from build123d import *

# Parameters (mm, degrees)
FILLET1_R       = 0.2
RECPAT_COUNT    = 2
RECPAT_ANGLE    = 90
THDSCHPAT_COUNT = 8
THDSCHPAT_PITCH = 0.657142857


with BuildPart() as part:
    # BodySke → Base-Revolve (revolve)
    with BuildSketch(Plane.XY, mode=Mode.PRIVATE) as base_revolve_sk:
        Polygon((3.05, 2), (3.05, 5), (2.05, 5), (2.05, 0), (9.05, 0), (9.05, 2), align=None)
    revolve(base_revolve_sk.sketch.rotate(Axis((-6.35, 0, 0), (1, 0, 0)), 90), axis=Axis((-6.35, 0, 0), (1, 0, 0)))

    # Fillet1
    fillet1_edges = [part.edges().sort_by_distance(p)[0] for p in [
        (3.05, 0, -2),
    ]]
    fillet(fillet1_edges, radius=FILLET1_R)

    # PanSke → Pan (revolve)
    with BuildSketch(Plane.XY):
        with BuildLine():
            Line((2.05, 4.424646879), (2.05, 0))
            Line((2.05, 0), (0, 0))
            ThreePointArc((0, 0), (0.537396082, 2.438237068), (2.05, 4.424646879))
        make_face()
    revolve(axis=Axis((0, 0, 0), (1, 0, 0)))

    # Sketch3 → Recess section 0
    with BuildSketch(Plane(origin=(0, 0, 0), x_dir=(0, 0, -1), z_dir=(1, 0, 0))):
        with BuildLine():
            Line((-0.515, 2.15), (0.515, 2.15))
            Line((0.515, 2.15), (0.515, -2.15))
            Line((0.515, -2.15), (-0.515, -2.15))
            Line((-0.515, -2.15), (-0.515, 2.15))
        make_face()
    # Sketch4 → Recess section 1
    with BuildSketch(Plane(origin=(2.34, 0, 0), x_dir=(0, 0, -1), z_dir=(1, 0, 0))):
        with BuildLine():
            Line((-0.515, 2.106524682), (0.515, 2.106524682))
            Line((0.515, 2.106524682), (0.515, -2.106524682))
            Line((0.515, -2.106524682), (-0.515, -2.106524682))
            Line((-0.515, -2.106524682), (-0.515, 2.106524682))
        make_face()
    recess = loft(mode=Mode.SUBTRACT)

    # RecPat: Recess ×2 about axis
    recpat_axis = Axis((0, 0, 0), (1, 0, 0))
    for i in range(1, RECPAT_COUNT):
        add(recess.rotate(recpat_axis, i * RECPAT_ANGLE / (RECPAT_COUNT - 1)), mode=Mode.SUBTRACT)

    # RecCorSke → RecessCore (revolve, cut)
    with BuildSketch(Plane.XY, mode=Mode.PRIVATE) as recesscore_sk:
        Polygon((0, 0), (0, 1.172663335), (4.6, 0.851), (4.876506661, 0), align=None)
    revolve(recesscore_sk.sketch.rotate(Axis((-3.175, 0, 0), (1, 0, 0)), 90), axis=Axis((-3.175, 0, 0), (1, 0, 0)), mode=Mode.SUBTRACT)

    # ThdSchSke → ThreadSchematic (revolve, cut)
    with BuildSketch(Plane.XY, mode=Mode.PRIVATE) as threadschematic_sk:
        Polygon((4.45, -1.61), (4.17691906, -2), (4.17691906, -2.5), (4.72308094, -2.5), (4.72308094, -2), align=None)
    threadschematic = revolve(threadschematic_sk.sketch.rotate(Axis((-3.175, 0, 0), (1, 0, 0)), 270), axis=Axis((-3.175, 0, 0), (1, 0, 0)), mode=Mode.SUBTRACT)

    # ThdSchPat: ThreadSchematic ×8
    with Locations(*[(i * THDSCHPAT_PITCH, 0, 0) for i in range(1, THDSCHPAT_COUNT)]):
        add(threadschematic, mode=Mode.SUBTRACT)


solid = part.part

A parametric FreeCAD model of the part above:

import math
import FreeCAD as App
import Part
import Sketcher

V = App.Vector
Q = App.Units.Quantity


def edges_at(feature, points):
    """Names of the edges that pass closest to the given points."""
    edges = feature.Shape.Edges
    near = lambda p: min(range(len(edges)), key=lambda i: edges[i].distToShape(Part.Vertex(*p))[0])
    return sorted({f"Edge{near(p) + 1}" for p in points})


def add_polygon(sketch, points):
    """Adds a closed chain of lines whose ends are joined by coincident constraints."""
    first, n = sketch.GeometryCount, len(points)
    for a, b in zip(points, points[1:] + points[:1]):
        sketch.addGeometry(Part.LineSegment(App.Vector(*a, 0), App.Vector(*b, 0)), False)
    for i in range(n):
        sketch.addConstraint(Sketcher.Constraint("Coincident", first + i, 2, first + (i + 1) % n, 1))

doc = App.newDocument("Part")
body = doc.addObject("PartDesign::Body", "Body")

sketch1 = body.newObject("Sketcher::SketchObject", "Sketch")
sketch1.AttachmentSupport = (doc.getObject("XY_Plane"), [""])
sketch1.MapMode = "FlatFace"
add_polygon(sketch1, [(3, 2), (3, 5), (2, 5), (2, 0), (9.1, 0), (9.1, 2)])
sketch1.addConstraint(Sketcher.Constraint("Vertical", 0))
sketch1.addConstraint(Sketcher.Constraint("Horizontal", 1))
sketch1.addConstraint(Sketcher.Constraint("Vertical", 2))
sketch1.addConstraint(Sketcher.Constraint("Horizontal", 3))
sketch1.addConstraint(Sketcher.Constraint("Vertical", 4))
sketch1.addConstraint(Sketcher.Constraint("Horizontal", 5))
sketch1.addConstraint(Sketcher.Constraint("PointOnObject", 2, 2, -1))
sketch1.addConstraint(Sketcher.Constraint("DistanceX", 1, 2, 1, 1, 1.0))
sketch1.addConstraint(Sketcher.Constraint("DistanceX", 3, 1, 3, 2, 7.0))
sketch1.addConstraint(Sketcher.Constraint("DistanceY", 0, 1, 0, 2, 3.0))
sketch1.addConstraint(Sketcher.Constraint("DistanceY", 2, 2, 2, 1, 5.0))
sketch1.addConstraint(Sketcher.Constraint("DistanceX", -1, 1, 0, 2, 3.05))
revolution = body.newObject("PartDesign::Revolution", "Revolution")
revolution.Profile = sketch1
revolution.ReferenceAxis = (sketch1, ["H_Axis"])
revolution.Angle = 360
doc.recompute()

fillet = body.newObject("PartDesign::Fillet", "Fillet")
fillet.Base = (revolution, edges_at(revolution, [(3.05, 0, -2)]))
fillet.Radius = 0.2

sketch2 = body.newObject("Sketcher::SketchObject", "Sketch001")
sketch2.AttachmentSupport = (doc.getObject("XY_Plane"), [""])
sketch2.MapMode = "FlatFace"
sketch2.addGeometry(Part.LineSegment(V(2, 0, 0), V(2, 4.4, 0)), False)
sketch2.addGeometry(Part.ArcOfCircle(Part.Circle(V(5.8, 0, 0), V(0, 0, 1), 5.8), math.radians(130), math.radians(180)), False)
sketch2.addGeometry(Part.LineSegment(V(0, 0, 0), V(2, 0, 0)), False)
sketch2.addConstraint(Sketcher.Constraint("Coincident", 0, 2, 1, 1))
sketch2.addConstraint(Sketcher.Constraint("Coincident", 1, 2, 2, 1))
sketch2.addConstraint(Sketcher.Constraint("Coincident", 2, 2, 0, 1))
sketch2.addConstraint(Sketcher.Constraint("Vertical", 0))
sketch2.addConstraint(Sketcher.Constraint("Horizontal", 2))
sketch2.addConstraint(Sketcher.Constraint("Coincident", 1, 2, -1, 1))
sketch2.addConstraint(Sketcher.Constraint("PointOnObject", 1, 3, -1))
sketch2.addConstraint(Sketcher.Constraint("Radius", 1, 5.8))
sketch2.addConstraint(Sketcher.Constraint("DistanceX", 2, 1, 2, 2, 2.05))
revolution2 = body.newObject("PartDesign::Revolution", "Revolution001")
revolution2.Profile = sketch2
revolution2.ReferenceAxis = (sketch2, ["H_Axis"])
revolution2.Angle = 360

sketch3 = body.newObject("Sketcher::SketchObject", "Sketch002")
sketch3.AttachmentSupport = (doc.getObject("YZ_Plane"), [""])
sketch3.MapMode = "FlatFace"
add_polygon(sketch3, [(2.1, -0.5), (2.1, 0.5), (-2.1, 0.5), (-2.1, -0.5)])
sketch3.addConstraint(Sketcher.Constraint("Vertical", 0))
sketch3.addConstraint(Sketcher.Constraint("Horizontal", 1))
sketch3.addConstraint(Sketcher.Constraint("Vertical", 2))
sketch3.addConstraint(Sketcher.Constraint("Horizontal", 3))
sketch3.addConstraint(Sketcher.Constraint("Symmetric", 0, 2, 2, 2, -1, 1))
sketch3.addConstraint(Sketcher.Constraint("DistanceX", 1, 2, 1, 1, 4.3))
sketch3.addConstraint(Sketcher.Constraint("DistanceY", 0, 1, 0, 2, 1.03))

sketch4 = body.newObject("Sketcher::SketchObject", "Sketch003")
sketch4.AttachmentSupport = (doc.getObject("YZ_Plane"), [""])
sketch4.MapMode = "FlatFace"
sketch4.AttachmentOffset = App.Placement(V(0, 0, 2.34), App.Rotation())
add_polygon(sketch4, [(2.1, -0.5), (2.1, 0.5), (-2.1, 0.5), (-2.1, -0.5)])
sketch4.addConstraint(Sketcher.Constraint("Vertical", 0))
sketch4.addConstraint(Sketcher.Constraint("Horizontal", 1))
sketch4.addConstraint(Sketcher.Constraint("Vertical", 2))
sketch4.addConstraint(Sketcher.Constraint("Horizontal", 3))
sketch4.addConstraint(Sketcher.Constraint("Symmetric", 0, 2, 2, 2, -1, 1))
sketch4.addConstraint(Sketcher.Constraint("DistanceY", 0, 1, 0, 2, 1.03))
sketch4.addConstraint(Sketcher.Constraint("DistanceX", 1, 2, 1, 1, 4.213049))

subtractiveloft = body.newObject("PartDesign::SubtractiveLoft", "SubtractiveLoft")
subtractiveloft.Profile = sketch3
subtractiveloft.Sections = [sketch4]
doc.recompute()

polarpattern = body.newObject("PartDesign::PolarPattern", "PolarPattern")
polarpattern.Originals = [subtractiveloft]
polarpattern.Axis = (doc.getObject("X_Axis"), [""])
polarpattern.Angle = 90
polarpattern.Occurrences = 2
body.Tip = polarpattern

sketch5 = body.newObject("Sketcher::SketchObject", "Sketch004")
sketch5.AttachmentSupport = (doc.getObject("XY_Plane"), [""])
sketch5.MapMode = "FlatFace"
add_polygon(sketch5, [(0, 1.2), (0, 0), (4.9, 0), (4.6, 0.9)])
sketch5.addConstraint(Sketcher.Constraint("Vertical", 0))
sketch5.addConstraint(Sketcher.Constraint("Horizontal", 1))
sketch5.addConstraint(Sketcher.Constraint("Coincident", 0, 2, -1, 1))
sketch5.addConstraint(Sketcher.Constraint("Angle", 2, Q("108 deg")))
sketch5.addConstraint(Sketcher.Constraint("Angle", 3, Q("176 deg")))
sketch5.addConstraint(Sketcher.Constraint("DistanceX", -1, 1, 2, 2, 4.6))
sketch5.addConstraint(Sketcher.Constraint("DistanceY", -1, 1, 2, 2, 0.851))
groove = body.newObject("PartDesign::Groove", "Groove")
groove.Profile = sketch5
groove.ReferenceAxis = (sketch5, ["H_Axis"])
groove.Angle = 360

sketch6 = body.newObject("Sketcher::SketchObject", "Sketch005")
sketch6.AttachmentSupport = (doc.getObject("XY_Plane"), [""])
sketch6.MapMode = "FlatFace"
add_polygon(sketch6, [(4.45, -1.61), (4.18, -2), (4.18, -2.5), (4.72, -2.5), (4.72, -2)])
sketch6.addConstraint(Sketcher.Constraint("Vertical", 1))
sketch6.addConstraint(Sketcher.Constraint("Horizontal", 2))
sketch6.addConstraint(Sketcher.Constraint("Vertical", 3))
sketch6.addConstraint(Sketcher.Constraint("Horizontal", 0, 2, 3, 2))
sketch6.addConstraint(Sketcher.Constraint("Equal", 0, 4))
sketch6.addConstraint(Sketcher.Constraint("Angle", 0, Q("-125 deg")))
sketch6.addConstraint(Sketcher.Constraint("DistanceY", 1, 2, 1, 1, 0.5))
sketch6.addConstraint(Sketcher.Constraint("DistanceY", 0, 2, -1, 1, 2.0))
sketch6.addConstraint(Sketcher.Constraint("DistanceX", -1, 1, 4, 2, 4.45))
sketch6.addConstraint(Sketcher.Constraint("DistanceY", 4, 2, -1, 1, 1.61))
groove2 = body.newObject("PartDesign::Groove", "Groove001")
groove2.Profile = sketch6
groove2.ReferenceAxis = (sketch6, ["H_Axis"])
groove2.Angle = 360
doc.recompute()

linearpattern = body.newObject("PartDesign::LinearPattern", "LinearPattern")
linearpattern.Originals = [groove2]
linearpattern.Direction = (doc.getObject("X_Axis"), [""])
linearpattern.Mode = "offset"
linearpattern.Offset = 0.657143
linearpattern.Occurrences = 8
body.Tip = linearpattern

doc.recompute()
